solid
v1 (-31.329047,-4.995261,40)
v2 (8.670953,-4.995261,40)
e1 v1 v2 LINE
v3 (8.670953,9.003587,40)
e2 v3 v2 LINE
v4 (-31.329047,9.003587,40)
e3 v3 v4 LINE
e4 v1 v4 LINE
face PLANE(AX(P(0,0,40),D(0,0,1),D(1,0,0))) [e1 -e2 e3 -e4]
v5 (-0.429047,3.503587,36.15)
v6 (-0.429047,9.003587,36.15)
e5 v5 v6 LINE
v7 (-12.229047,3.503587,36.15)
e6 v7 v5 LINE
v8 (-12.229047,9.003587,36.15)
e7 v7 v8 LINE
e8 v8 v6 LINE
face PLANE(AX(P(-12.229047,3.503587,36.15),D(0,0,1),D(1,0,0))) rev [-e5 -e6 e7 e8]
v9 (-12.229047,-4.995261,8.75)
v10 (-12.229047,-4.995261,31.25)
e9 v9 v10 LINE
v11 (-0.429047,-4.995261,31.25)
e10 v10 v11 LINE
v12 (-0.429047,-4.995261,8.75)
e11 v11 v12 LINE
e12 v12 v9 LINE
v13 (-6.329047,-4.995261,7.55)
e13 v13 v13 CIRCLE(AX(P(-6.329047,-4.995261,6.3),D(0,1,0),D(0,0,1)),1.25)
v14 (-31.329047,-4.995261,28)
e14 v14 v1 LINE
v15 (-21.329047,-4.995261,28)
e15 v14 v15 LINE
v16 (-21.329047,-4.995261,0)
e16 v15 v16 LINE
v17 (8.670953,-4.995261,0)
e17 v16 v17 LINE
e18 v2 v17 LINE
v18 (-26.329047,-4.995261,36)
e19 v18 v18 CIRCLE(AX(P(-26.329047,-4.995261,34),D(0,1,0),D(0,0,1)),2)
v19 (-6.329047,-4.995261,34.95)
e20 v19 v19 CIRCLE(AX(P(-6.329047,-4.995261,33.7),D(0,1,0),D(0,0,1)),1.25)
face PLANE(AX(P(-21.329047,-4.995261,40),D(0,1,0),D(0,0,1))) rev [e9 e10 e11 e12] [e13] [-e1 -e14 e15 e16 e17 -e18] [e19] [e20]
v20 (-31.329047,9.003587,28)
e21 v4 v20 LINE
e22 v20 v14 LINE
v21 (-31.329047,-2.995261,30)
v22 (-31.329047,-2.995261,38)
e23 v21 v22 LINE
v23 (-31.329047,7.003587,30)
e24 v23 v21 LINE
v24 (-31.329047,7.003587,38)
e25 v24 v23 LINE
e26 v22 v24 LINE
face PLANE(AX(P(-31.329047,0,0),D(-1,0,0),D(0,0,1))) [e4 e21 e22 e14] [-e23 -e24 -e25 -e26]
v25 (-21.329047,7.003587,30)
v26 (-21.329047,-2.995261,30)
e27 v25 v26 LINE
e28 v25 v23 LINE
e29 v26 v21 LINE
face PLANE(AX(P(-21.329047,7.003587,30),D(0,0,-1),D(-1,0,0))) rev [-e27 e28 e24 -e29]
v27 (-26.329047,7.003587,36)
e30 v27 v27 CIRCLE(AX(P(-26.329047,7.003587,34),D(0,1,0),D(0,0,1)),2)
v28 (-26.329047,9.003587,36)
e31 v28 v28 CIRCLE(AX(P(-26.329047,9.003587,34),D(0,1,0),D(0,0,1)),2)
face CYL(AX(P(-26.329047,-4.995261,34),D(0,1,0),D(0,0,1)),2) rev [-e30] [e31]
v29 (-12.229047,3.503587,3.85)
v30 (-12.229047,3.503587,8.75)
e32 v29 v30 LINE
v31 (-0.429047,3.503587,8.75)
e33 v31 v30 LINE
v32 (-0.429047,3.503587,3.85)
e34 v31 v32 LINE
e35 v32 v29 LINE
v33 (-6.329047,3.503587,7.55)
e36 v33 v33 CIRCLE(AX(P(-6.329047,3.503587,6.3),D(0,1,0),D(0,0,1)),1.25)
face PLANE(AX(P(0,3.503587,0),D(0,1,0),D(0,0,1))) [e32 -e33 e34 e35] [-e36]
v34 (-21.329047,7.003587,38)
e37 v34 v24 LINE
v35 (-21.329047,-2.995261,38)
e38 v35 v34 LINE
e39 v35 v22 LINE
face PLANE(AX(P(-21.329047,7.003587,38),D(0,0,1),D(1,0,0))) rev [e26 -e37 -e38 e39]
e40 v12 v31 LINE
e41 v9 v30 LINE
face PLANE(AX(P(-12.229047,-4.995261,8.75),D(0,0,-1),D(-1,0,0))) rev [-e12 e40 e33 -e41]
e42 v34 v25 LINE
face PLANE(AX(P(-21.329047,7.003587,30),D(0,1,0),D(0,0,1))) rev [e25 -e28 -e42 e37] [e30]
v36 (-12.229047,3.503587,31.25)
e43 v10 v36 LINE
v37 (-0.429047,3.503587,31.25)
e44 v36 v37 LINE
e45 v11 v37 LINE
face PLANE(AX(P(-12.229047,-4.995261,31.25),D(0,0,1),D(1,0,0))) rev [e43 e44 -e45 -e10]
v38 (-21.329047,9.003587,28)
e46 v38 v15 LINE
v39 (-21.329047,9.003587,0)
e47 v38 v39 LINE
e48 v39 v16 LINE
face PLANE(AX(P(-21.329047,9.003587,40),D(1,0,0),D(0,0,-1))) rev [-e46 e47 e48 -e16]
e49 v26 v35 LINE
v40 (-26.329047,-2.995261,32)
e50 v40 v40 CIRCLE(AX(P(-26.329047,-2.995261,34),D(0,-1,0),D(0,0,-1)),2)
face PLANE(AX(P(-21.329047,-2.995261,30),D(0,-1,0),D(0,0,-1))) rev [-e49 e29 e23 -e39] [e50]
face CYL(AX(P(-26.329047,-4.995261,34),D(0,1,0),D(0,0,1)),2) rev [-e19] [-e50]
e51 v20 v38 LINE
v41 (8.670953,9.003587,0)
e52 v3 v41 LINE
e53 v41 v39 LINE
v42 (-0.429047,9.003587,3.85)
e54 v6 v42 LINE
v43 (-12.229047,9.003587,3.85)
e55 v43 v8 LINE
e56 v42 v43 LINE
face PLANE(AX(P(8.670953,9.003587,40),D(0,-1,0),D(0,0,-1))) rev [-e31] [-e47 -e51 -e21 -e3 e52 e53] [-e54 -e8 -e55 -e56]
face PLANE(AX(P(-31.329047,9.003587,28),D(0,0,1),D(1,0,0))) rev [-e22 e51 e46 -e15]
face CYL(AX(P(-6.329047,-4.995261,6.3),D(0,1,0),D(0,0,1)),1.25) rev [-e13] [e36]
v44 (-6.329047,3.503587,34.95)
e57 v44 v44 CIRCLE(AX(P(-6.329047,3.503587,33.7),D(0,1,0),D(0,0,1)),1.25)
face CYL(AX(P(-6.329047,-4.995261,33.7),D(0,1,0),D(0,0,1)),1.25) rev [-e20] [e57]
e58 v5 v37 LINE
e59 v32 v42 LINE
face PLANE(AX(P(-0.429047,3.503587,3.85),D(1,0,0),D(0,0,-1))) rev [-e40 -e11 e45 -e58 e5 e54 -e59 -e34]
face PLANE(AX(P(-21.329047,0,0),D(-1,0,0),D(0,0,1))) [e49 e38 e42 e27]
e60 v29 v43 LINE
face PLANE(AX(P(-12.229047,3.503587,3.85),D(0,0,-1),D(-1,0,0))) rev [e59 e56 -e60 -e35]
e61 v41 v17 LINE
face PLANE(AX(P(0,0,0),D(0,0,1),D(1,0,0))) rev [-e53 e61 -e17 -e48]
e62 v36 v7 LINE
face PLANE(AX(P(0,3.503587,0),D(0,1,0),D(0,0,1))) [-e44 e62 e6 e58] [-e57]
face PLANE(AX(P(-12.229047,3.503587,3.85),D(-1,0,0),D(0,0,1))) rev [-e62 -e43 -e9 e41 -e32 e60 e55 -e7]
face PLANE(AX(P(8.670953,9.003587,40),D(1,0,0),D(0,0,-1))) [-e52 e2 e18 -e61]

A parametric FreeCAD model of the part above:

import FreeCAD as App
import Part
import Sketcher
from FreeCAD import Vector

doc = App.newDocument("Part")
body = doc.addObject("PartDesign::Body", "Body")

# Sketch on XY plane
sketch1 = doc.addObject("Sketcher::SketchObject", "Sketch")
body.addObject(sketch1)
sketch1.AttachmentSupport = (doc.XY_Plane, [""])
sketch1.MapMode = "FlatFace"
sketch1.addGeometry(Part.LineSegment(Vector(8.670953, 9.003587, 0), Vector(-21.329047, 9.003587, 0)), False)
sketch1.addGeometry(Part.LineSegment(Vector(-21.329047, 9.003587, 0), Vector(-21.329047, -4.995261, 0)), False)
sketch1.addGeometry(Part.LineSegment(Vector(-21.329047, -4.995261, 0), Vector(8.670953, -4.995261, 0)), False)
sketch1.addGeometry(Part.LineSegment(Vector(8.670953, -4.995261, 0), Vector(8.670953, 9.003587, 0)), False)
sketch1.addConstraint(Sketcher.Constraint("Coincident", 0, 2, 1, 1))
sketch1.addConstraint(Sketcher.Constraint("Coincident", 1, 2, 2, 1))
sketch1.addConstraint(Sketcher.Constraint("Coincident", 2, 2, 3, 1))
sketch1.addConstraint(Sketcher.Constraint("Coincident", 3, 2, 0, 1))
sketch1.addConstraint(Sketcher.Constraint("Horizontal", 0))
sketch1.addConstraint(Sketcher.Constraint("Vertical", 1))
sketch1.addConstraint(Sketcher.Constraint("Horizontal", 2))
sketch1.addConstraint(Sketcher.Constraint("Vertical", 3))
sketch1.addConstraint(Sketcher.Constraint("DistanceX", 0, 2, 0, 1, 30.0))
sketch1.addConstraint(Sketcher.Constraint("DistanceY", 1, 2, 1, 1, 13.998848))
sketch1.addConstraint(Sketcher.Constraint("DistanceY", 1, 2, -1, 1, 4.995261))
sketch1.addConstraint(Sketcher.Constraint("DistanceX", 0, 2, -1, 1, 21.329047))
pad1 = doc.addObject("PartDesign::Pad", "Pad")
body.addObject(pad1)
pad1.Profile = sketch1
pad1.Length = 40

# Sketch on XZ plane
sketch2 = doc.addObject("Sketcher::SketchObject", "Sketch001")
body.addObject(sketch2)
sketch2.AttachmentSupport = (doc.XZ_Plane, [""])
sketch2.MapMode = "FlatFace"
sketch2.AttachmentOffset = App.Placement(Vector(0, 0, -9.003587), App.Rotation())
sketch2.addGeometry(Part.LineSegment(Vector(-12.229047, 3.85, 0), Vector(-12.229047, 36.15, 0)), False)
sketch2.addGeometry(Part.LineSegment(Vector(-12.229047, 36.15, 0), Vector(-0.429047, 36.15, 0)), False)
sketch2.addGeometry(Part.LineSegment(Vector(-0.429047, 36.15, 0), Vector(-0.429047, 3.85, 0)), False)
sketch2.addGeometry(Part.LineSegment(Vector(-0.429047, 3.85, 0), Vector(-12.229047, 3.85, 0)), False)
sketch2.addConstraint(Sketcher.Constraint("Coincident", 0, 2, 1, 1))
sketch2.addConstraint(Sketcher.Constraint("Coincident", 1, 2, 2, 1))
sketch2.addConstraint(Sketcher.Constraint("Coincident", 2, 2, 3, 1))
sketch2.addConstraint(Sketcher.Constraint("Coincident", 3, 2, 0, 1))
sketch2.addConstraint(Sketcher.Constraint("Vertical", 0))
sketch2.addConstraint(Sketcher.Constraint("Horizontal", 1))
sketch2.addConstraint(Sketcher.Constraint("Vertical", 2))
sketch2.addConstraint(Sketcher.Constraint("Horizontal", 3))
sketch2.addConstraint(Sketcher.Constraint("DistanceX", 1, 1, 1, 2, 11.8))
sketch2.addConstraint(Sketcher.Constraint("DistanceY", 0, 1, 0, 2, 32.3))
sketch2.addConstraint(Sketcher.Constraint("DistanceY", -1, 1, 0, 2, 36.15))
sketch2.addConstraint(Sketcher.Constraint("DistanceX", 0, 2, -1, 1, 12.229047))
pocket1 = doc.addObject("PartDesign::Pocket", "Pocket")
body.addObject(pocket1)
pocket1.Profile = sketch2
pocket1.Length = 5.5
pocket1.Reversed = True

# Sketch on XZ plane
sketch3 = doc.addObject("Sketcher::SketchObject", "Sketch002")
body.addObject(sketch3)
sketch3.AttachmentSupport = (doc.XZ_Plane, [""])
sketch3.MapMode = "FlatFace"
sketch3.AttachmentOffset = App.Placement(Vector(0, 0, -3.503587), App.Rotation())
sketch3.addGeometry(Part.LineSegment(Vector(-12.229047, 8.75, 0), Vector(-12.229047, 31.25, 0)), False)
sketch3.addGeometry(Part.LineSegment(Vector(-12.229047, 31.25, 0), Vector(-0.429047, 31.25, 0)), False)
sketch3.addGeometry(Part.LineSegment(Vector(-0.429047, 31.25, 0), Vector(-0.429047, 8.75, 0)), False)
sketch3.addGeometry(Part.LineSegment(Vector(-0.429047, 8.75, 0), Vector(-12.229047, 8.75, 0)), False)
sketch3.addConstraint(Sketcher.Constraint("Coincident", 0, 2, 1, 1))
sketch3.addConstraint(Sketcher.Constraint("Coincident", 1, 2, 2, 1))
sketch3.addConstraint(Sketcher.Constraint("Coincident", 2, 2, 3, 1))
sketch3.addConstraint(Sketcher.Constraint("Coincident", 3, 2, 0, 1))
sketch3.addConstraint(Sketcher.Constraint("Vertical", 0))
sketch3.addConstraint(Sketcher.Constraint("Horizontal", 1))
sketch3.addConstraint(Sketcher.Constraint("Vertical", 2))
sketch3.addConstraint(Sketcher.Constraint("Horizontal", 3))
sketch3.addConstraint(Sketcher.Constraint("DistanceX", 1, 1, 1, 2, 11.8))
sketch3.addConstraint(Sketcher.Constraint("DistanceY", 0, 1, 0, 2, 22.5))
sketch3.addConstraint(Sketcher.Constraint("DistanceY", -1, 1, 0, 2, 31.25))
sketch3.addConstraint(Sketcher.Constraint("DistanceX", 0, 2, -1, 1, 12.229047))
pocket2 = doc.addObject("PartDesign::Pocket", "Pocket001")
body.addObject(pocket2)
pocket2.Profile = sketch3
pocket2.Type = "ThroughAll"
pocket2.Reversed = True

# Sketch on XZ plane
sketch4 = doc.addObject("Sketcher::SketchObject", "Sketch003")
body.addObject(sketch4)
sketch4.AttachmentSupport = (doc.XZ_Plane, [""])
sketch4.MapMode = "FlatFace"
sketch4.AttachmentOffset = App.Placement(Vector(0, 0, -3.503587), App.Rotation())
sketch4.addGeometry(Part.Circle(Vector(-6.329047, 6.3, 0), Vector(0, 0, 1), 1.25), False)
sketch4.addGeometry(Part.Circle(Vector(-6.329047, 33.7, 0), Vector(0, 0, 1), 1.25), False)
sketch4.addConstraint(Sketcher.Constraint("Equal", 0, 1))
sketch4.addConstraint(Sketcher.Constraint("Vertical", 0, 3, 1, 3))
sketch4.addConstraint(Sketcher.Constraint("Diameter", 0, 2.5))
sketch4.addConstraint(Sketcher.Constraint("DistanceY", -1, 1, 0, 3, 6.3))
sketch4.addConstraint(Sketcher.Constraint("DistanceY", -1, 1, 1, 3, 33.7))
sketch4.addConstraint(Sketcher.Constraint("DistanceX", 0, 3, -1, 1, 6.329047))
pocket3 = doc.addObject("PartDesign::Pocket", "Pocket002")
body.addObject(pocket3)
pocket3.Profile = sketch4
pocket3.Type = "ThroughAll"
pocket3.Reversed = True

# Sketch on YZ plane
sketch5 = doc.addObject("Sketcher::SketchObject", "Sketch004")
body.addObject(sketch5)
sketch5.AttachmentSupport = (doc.YZ_Plane, [""])
sketch5.MapMode = "FlatFace"
sketch5.AttachmentOffset = App.Placement(Vector(0, 0, -21.329047), App.Rotation())
sketch5.addGeometry(Part.LineSegment(Vector(9.003587, 28, 0), Vector(-4.995261, 28, 0)), False)
sketch5.addGeometry(Part.LineSegment(Vector(-4.995261, 28, 0), Vector(-4.995261, 40, 0)), False)
sketch5.addGeometry(Part.LineSegment(Vector(-4.995261, 40, 0), Vector(9.003587, 40, 0)), False)
sketch5.addGeometry(Part.LineSegment(Vector(9.003587, 40, 0), Vector(9.003587, 28, 0)), False)
sketch5.addConstraint(Sketcher.Constraint("Coincident", 0, 2, 1, 1))
sketch5.addConstraint(Sketcher.Constraint("Coincident", 1, 2, 2, 1))
sketch5.addConstraint(Sketcher.Constraint("Coincident", 2, 2, 3, 1))
sketch5.addConstraint(Sketcher.Constraint("Coincident", 3, 2, 0, 1))
sketch5.addConstraint(Sketcher.Constraint("Horizontal", 0))
sketch5.addConstraint(Sketcher.Constraint("Vertical", 1))
sketch5.addConstraint(Sketcher.Constraint("Horizontal", 2))
sketch5.addConstraint(Sketcher.Constraint("Vertical", 3))
sketch5.addConstraint(Sketcher.Constraint("DistanceY", 1, 1, 1, 2, 12.0))
sketch5.addConstraint(Sketcher.Constraint("DistanceY", -1, 1, 0, 2, 28.0))
sketch5.addConstraint(Sketcher.Constraint("DistanceX", 0, 2, 0, 1, 13.998848))
sketch5.addConstraint(Sketcher.Constraint("DistanceX", 0, 2, -1, 1, 4.995261))
pad2 = doc.addObject("PartDesign::Pad", "Pad001")
body.addObject(pad2)
pad2.Profile = sketch5
pad2.Length = 10
pad2.Reversed = True

# Sketch on YZ plane
sketch6 = doc.addObject("Sketcher::SketchObject", "Sketch005")
body.addObject(sketch6)
sketch6.AttachmentSupport = (doc.YZ_Plane, [""])
sketch6.MapMode = "FlatFace"
sketch6.AttachmentOffset = App.Placement(Vector(0, 0, -31.329047), App.Rotation())
sketch6.addGeometry(Part.LineSegment(Vector(7.003587, 30, 0), Vector(-2.995261, 30, 0)), False)
sketch6.addGeometry(Part.LineSegment(Vector(-2.995261, 30, 0), Vector(-2.995261, 38, 0)), False)
sketch6.addGeometry(Part.LineSegment(Vector(-2.995261, 38, 0), Vector(7.003587, 38, 0)), False)
sketch6.addGeometry(Part.LineSegment(Vector(7.003587, 38, 0), Vector(7.003587, 30, 0)), False)
sketch6.addConstraint(Sketcher.Constraint("Coincident", 0, 2, 1, 1))
sketch6.addConstraint(Sketcher.Constraint("Coincident", 1, 2, 2, 1))
sketch6.addConstraint(Sketcher.Constraint("Coincident", 2, 2, 3, 1))
sketch6.addConstraint(Sketcher.Constraint("Coincident", 3, 2, 0, 1))
sketch6.addConstraint(Sketcher.Constraint("Horizontal", 0))
sketch6.addConstraint(Sketcher.Constraint("Vertical", 1))
sketch6.addConstraint(Sketcher.Constraint("Horizontal", 2))
sketch6.addConstraint(Sketcher.Constraint("Vertical", 3))
sketch6.addConstraint(Sketcher.Constraint("DistanceY", 1, 1, 1, 2, 8.0))
sketch6.addConstraint(Sketcher.Constraint("DistanceY", -1, 1, 0, 2, 30.0))
sketch6.addConstraint(Sketcher.Constraint("DistanceX", 0, 2, 0, 1, 9.998848))
sketch6.addConstraint(Sketcher.Constraint("DistanceX", 0, 2, -1, 1, 2.995261))
pocket4 = doc.addObject("PartDesign::Pocket", "Pocket003")
body.addObject(pocket4)
pocket4.Profile = sketch6
pocket4.Length = 10
pocket4.Reversed = True

# Sketch on XZ plane
sketch7 = doc.addObject("Sketcher::SketchObject", "Sketch006")
body.addObject(sketch7)
sketch7.AttachmentSupport = (doc.XZ_Plane, [""])
sketch7.MapMode = "FlatFace"
sketch7.AttachmentOffset = App.Placement(Vector(0, 0, -9.003587), App.Rotation())
sketch7.addGeometry(Part.Circle(Vector(-26.329047, 34, 0), Vector(0, 0, 1), 2), False)
sketch7.addConstraint(Sketcher.Constraint("Diameter", 0, 4.0))
sketch7.addConstraint(Sketcher.Constraint("DistanceY", -1, 1, 0, 3, 34.0))
sketch7.addConstraint(Sketcher.Constraint("DistanceX", 0, 3, -1, 1, 26.329047))
pocket5 = doc.addObject("PartDesign::Pocket", "Pocket004")
body.addObject(pocket5)
pocket5.Profile = sketch7
pocket5.Type = "ThroughAll"
pocket5.Reversed = True

doc.recompute()
